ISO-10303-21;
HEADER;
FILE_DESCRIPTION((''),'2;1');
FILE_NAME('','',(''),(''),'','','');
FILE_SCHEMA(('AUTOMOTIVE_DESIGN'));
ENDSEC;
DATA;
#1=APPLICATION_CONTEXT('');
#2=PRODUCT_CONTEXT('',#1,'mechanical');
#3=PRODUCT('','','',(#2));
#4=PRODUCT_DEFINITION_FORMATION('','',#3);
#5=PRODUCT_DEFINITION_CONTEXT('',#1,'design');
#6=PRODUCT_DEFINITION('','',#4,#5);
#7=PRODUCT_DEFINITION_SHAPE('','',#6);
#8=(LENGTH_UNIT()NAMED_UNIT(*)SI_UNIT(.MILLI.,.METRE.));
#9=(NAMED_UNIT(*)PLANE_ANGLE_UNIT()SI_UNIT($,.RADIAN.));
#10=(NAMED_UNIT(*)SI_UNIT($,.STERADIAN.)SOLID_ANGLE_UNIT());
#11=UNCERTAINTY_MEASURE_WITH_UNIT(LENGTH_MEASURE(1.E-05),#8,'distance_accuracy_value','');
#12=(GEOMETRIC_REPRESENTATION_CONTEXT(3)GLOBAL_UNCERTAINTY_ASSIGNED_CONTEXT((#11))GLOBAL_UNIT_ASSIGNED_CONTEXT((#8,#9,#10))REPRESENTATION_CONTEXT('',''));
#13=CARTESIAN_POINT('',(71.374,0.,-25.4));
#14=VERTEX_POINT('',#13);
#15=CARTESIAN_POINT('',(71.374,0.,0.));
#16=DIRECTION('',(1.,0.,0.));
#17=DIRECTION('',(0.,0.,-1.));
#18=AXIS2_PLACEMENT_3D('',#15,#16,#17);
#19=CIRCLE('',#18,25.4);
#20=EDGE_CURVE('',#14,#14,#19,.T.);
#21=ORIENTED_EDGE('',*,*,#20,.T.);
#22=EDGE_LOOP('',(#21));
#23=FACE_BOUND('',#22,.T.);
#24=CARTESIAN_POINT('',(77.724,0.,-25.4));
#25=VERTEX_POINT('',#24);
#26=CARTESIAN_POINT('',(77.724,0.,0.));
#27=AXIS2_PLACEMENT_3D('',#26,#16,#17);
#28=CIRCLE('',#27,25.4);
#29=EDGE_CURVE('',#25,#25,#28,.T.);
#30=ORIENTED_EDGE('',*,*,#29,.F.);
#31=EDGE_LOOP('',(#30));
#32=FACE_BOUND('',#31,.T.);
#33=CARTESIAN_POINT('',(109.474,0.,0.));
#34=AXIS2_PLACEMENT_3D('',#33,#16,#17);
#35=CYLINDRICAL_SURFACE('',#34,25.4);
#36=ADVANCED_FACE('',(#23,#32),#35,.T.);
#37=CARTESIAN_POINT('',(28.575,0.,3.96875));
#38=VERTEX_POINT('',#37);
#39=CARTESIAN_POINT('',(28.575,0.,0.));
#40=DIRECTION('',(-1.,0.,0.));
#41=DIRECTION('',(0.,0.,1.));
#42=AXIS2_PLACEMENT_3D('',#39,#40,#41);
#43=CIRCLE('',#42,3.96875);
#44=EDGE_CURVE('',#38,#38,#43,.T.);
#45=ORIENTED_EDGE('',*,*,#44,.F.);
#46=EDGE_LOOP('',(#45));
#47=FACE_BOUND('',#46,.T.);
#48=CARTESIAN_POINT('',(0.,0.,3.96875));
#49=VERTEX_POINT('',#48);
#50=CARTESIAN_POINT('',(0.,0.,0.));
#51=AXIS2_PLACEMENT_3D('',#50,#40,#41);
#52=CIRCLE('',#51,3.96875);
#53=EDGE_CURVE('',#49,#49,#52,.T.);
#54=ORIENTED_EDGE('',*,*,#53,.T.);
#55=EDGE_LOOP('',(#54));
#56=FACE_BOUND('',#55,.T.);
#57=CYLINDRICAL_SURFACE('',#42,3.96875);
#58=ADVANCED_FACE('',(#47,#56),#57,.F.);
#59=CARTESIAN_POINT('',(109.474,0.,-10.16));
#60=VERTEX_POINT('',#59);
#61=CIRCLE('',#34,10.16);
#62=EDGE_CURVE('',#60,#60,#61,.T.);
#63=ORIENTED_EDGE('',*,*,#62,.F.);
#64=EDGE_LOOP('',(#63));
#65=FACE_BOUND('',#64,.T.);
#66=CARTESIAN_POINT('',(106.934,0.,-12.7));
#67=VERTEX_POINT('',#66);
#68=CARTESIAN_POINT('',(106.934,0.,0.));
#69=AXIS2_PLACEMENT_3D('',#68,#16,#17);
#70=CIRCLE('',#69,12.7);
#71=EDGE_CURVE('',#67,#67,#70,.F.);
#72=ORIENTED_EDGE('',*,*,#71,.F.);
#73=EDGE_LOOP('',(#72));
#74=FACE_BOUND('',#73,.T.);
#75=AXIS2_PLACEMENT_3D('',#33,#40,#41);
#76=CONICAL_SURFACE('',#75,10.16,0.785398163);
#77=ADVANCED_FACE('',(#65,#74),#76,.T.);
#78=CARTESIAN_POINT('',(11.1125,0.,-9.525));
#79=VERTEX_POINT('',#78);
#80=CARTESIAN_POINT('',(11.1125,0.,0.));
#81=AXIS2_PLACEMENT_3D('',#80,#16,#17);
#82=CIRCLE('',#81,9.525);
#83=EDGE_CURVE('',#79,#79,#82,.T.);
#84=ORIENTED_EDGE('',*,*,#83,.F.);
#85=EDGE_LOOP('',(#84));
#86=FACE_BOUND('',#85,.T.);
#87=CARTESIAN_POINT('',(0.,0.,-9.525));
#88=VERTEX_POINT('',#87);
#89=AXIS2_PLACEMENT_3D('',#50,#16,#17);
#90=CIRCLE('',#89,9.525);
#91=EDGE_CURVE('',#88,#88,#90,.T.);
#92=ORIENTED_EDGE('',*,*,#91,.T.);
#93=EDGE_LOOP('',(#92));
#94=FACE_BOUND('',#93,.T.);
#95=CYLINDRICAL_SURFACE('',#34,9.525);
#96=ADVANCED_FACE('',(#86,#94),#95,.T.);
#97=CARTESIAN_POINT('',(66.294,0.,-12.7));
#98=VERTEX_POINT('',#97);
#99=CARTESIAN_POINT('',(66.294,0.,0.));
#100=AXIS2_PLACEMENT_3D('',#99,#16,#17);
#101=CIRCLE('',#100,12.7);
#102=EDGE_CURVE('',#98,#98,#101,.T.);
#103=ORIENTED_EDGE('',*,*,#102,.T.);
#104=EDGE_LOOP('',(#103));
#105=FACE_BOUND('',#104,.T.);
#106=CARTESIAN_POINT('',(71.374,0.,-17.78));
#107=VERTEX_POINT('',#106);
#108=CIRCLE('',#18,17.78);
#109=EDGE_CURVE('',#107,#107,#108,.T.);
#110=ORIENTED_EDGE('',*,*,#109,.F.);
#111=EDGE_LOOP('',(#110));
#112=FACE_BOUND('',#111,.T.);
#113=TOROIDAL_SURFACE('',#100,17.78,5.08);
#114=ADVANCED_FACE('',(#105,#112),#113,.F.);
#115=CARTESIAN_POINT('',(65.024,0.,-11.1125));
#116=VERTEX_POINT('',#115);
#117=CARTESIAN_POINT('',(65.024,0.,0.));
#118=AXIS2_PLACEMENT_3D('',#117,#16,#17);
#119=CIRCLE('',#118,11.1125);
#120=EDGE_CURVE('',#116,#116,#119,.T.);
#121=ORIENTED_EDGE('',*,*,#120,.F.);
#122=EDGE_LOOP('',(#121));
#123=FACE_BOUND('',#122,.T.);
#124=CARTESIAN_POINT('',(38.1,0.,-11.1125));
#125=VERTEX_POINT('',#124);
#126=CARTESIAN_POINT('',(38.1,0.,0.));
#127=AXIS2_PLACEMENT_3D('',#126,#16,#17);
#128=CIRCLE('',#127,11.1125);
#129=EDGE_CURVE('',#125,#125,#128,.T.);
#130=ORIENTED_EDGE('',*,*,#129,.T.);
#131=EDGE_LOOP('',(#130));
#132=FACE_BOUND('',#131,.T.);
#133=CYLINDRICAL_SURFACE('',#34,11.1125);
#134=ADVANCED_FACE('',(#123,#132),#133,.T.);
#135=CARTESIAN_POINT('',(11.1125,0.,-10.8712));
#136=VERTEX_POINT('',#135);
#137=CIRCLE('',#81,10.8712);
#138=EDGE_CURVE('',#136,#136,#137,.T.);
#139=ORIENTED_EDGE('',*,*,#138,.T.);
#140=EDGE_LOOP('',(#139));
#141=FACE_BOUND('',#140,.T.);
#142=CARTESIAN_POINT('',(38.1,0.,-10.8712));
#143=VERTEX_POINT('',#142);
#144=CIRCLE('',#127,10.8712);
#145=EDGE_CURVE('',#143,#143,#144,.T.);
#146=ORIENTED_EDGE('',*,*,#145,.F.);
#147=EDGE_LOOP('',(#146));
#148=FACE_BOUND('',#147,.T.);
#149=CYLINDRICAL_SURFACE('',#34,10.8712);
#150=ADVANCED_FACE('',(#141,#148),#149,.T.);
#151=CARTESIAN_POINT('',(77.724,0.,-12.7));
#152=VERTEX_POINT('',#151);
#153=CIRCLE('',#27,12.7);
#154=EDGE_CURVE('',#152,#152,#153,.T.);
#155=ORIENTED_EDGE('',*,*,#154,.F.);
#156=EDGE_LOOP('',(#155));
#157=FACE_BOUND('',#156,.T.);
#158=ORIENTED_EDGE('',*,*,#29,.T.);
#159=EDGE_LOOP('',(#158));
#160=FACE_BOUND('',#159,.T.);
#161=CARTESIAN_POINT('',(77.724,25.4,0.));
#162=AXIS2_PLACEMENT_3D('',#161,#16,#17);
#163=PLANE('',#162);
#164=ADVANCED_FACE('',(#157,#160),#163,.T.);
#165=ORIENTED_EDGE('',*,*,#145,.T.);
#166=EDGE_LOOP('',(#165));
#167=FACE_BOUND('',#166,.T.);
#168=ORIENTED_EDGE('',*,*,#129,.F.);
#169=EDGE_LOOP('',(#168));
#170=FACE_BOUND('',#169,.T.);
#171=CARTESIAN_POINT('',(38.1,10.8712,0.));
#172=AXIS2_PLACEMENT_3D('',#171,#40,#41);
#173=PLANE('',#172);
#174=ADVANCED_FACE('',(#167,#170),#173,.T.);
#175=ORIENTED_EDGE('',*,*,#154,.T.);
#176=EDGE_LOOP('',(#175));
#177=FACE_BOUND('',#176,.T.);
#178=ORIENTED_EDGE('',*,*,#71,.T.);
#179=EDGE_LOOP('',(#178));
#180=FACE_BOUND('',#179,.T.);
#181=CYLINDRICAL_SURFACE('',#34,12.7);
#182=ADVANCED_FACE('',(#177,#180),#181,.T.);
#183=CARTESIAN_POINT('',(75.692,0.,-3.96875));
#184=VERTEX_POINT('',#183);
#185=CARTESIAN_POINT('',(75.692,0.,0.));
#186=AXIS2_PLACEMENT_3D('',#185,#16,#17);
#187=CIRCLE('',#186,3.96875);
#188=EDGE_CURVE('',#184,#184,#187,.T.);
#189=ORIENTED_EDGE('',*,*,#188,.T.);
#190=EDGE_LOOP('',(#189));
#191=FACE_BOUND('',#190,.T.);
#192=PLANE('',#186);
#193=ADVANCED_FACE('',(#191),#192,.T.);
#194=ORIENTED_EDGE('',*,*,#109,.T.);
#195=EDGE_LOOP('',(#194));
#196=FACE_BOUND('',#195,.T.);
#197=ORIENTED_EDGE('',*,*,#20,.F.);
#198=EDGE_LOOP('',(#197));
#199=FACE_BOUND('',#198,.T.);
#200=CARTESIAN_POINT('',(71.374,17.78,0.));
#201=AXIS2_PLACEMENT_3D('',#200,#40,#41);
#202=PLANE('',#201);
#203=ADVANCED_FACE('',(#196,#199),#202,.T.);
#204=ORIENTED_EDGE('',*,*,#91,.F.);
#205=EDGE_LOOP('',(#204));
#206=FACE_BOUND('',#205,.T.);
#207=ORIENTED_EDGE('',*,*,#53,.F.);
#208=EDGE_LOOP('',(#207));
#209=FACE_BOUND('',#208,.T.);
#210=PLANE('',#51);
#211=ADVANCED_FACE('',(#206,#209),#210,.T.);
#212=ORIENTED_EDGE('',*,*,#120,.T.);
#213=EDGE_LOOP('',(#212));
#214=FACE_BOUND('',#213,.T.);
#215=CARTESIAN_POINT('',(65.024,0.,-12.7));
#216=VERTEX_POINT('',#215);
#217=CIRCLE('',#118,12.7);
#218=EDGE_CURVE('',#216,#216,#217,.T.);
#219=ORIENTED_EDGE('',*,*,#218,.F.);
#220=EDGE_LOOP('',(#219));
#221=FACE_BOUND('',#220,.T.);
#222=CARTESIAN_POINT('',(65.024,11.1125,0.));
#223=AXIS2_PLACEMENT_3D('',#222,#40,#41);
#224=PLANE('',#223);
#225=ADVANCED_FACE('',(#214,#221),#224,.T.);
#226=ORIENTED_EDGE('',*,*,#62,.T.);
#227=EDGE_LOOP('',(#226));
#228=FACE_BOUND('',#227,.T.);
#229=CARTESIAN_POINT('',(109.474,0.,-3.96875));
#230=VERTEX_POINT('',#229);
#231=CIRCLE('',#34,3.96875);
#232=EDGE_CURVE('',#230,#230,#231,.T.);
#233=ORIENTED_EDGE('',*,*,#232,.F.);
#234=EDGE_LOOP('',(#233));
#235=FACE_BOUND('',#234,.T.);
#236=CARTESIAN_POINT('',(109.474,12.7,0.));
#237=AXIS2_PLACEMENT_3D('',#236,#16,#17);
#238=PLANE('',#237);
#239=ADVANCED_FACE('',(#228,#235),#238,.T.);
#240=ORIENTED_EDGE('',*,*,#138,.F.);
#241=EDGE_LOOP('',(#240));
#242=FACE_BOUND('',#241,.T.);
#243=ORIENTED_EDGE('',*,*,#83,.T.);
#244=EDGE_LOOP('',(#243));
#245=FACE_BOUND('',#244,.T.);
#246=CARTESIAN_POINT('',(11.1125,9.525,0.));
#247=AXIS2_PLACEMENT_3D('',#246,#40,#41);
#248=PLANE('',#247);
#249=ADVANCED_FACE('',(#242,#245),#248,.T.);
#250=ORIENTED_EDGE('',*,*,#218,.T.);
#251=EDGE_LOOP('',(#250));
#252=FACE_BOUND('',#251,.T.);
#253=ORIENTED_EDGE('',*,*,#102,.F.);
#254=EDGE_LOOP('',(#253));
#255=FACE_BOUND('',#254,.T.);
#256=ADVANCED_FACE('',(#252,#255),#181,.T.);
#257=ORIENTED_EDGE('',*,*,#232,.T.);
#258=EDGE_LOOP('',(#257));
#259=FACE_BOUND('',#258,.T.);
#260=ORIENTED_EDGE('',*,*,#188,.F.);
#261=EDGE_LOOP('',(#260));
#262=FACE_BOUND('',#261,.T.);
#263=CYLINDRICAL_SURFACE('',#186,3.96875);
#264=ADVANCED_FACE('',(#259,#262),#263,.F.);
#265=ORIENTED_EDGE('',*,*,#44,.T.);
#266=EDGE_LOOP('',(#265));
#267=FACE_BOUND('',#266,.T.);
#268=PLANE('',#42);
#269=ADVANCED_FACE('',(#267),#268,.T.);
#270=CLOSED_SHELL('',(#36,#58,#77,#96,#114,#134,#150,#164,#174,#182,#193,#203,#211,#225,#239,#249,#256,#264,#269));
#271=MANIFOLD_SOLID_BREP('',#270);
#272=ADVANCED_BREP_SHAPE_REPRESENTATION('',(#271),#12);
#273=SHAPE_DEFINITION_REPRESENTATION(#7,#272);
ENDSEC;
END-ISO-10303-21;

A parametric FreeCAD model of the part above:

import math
import FreeCAD as App
import Part
import Sketcher
from FreeCAD import Vector
Q = App.Units.Quantity


def edges_at(feature, points):
    """Names of the edges that pass closest to the given points."""
    edges = feature.Shape.Edges
    near = lambda p: min(range(len(edges)), key=lambda i: edges[i].distToShape(Part.Vertex(*p))[0])
    return sorted({f"Edge{near(p) + 1}" for p in points})

doc = App.newDocument("Part")
body = doc.addObject("PartDesign::Body", "Body")

sketch1 = body.newObject("Sketcher::SketchObject", "Sketch")
sketch1.AttachmentSupport = (doc.getObject("XY_Plane"), [""])
sketch1.MapMode = "FlatFace"
sketch1.addGeometry([
    Part.LineSegment(Vector(0, 9.53, 0), Vector(0, 0, 0)),
    Part.LineSegment(Vector(0, 0, 0), Vector(109.47, 0, 0)),
    Part.LineSegment(Vector(109.47, 0, 0), Vector(109.47, 12.7, 0)),
    Part.LineSegment(Vector(109.47, 12.7, 0), Vector(77.72, 12.7, 0)),
    Part.LineSegment(Vector(77.72, 12.7, 0), Vector(77.72, 25.4, 0)),
    Part.LineSegment(Vector(77.72, 25.4, 0), Vector(71.37, 25.4, 0)),
    Part.LineSegment(Vector(71.37, 25.4, 0), Vector(71.37, 17.78, 0)),
    Part.ArcOfCircle(Part.Circle(Vector(66.29, 17.78, 0), Vector(0, 0, 1), 5.08), math.radians(-90), math.radians(0)),
    Part.LineSegment(Vector(66.29, 12.7, 0), Vector(65.02, 12.7, 0)),
    Part.LineSegment(Vector(65.02, 12.7, 0), Vector(65.02, 11.11, 0)),
    Part.LineSegment(Vector(65.02, 11.11, 0), Vector(38.1, 11.11, 0)),
    Part.LineSegment(Vector(38.1, 11.11, 0), Vector(38.1, 10.87, 0)),
    Part.LineSegment(Vector(38.1, 10.87, 0), Vector(11.11, 10.87, 0)),
    Part.LineSegment(Vector(11.11, 10.87, 0), Vector(11.11, 9.53, 0)),
    Part.LineSegment(Vector(11.11, 9.53, 0), Vector(0, 9.53, 0)),
], False)
sketch1.addConstraint([
    Sketcher.Constraint("Coincident", 0, 2, 1, 1),
    Sketcher.Constraint("Coincident", 1, 2, 2, 1),
    Sketcher.Constraint("Coincident", 2, 2, 3, 1),
    Sketcher.Constraint("Coincident", 3, 2, 4, 1),
    Sketcher.Constraint("Coincident", 4, 2, 5, 1),
    Sketcher.Constraint("Coincident", 5, 2, 6, 1),
    Sketcher.Constraint("Tangent", 6, 2, 7, 2),
    Sketcher.Constraint("Tangent", 7, 1, 8, 1),
    Sketcher.Constraint("Coincident", 8, 2, 9, 1),
    Sketcher.Constraint("Coincident", 9, 2, 10, 1),
    Sketcher.Constraint("Coincident", 10, 2, 11, 1),
    Sketcher.Constraint("Coincident", 11, 2, 12, 1),
    Sketcher.Constraint("Coincident", 12, 2, 13, 1),
    Sketcher.Constraint("Coincident", 13, 2, 14, 1),
    Sketcher.Constraint("Coincident", 14, 2, 0, 1),
    Sketcher.Constraint("Vertical", 0),
    Sketcher.Constraint("Horizontal", 1),
    Sketcher.Constraint("Vertical", 2),
    Sketcher.Constraint("Horizontal", 3),
    Sketcher.Constraint("Vertical", 4),
    Sketcher.Constraint("Horizontal", 5),
    Sketcher.Constraint("Vertical", 6),
    Sketcher.Constraint("Horizontal", 8),
    Sketcher.Constraint("Vertical", 9),
    Sketcher.Constraint("Horizontal", 10),
    Sketcher.Constraint("Vertical", 11),
    Sketcher.Constraint("Horizontal", 12),
    Sketcher.Constraint("Vertical", 13),
    Sketcher.Constraint("Horizontal", 14),
    Sketcher.Constraint("Coincident", 0, 2, -1, 1),
    Sketcher.Constraint("Horizontal", 3, 2, 7, 1),
    Sketcher.Constraint("Equal", 2, 4),
    Sketcher.Constraint("Radius", 7, Q("0.2 in")),
    Sketcher.Constraint("DistanceY", 2, 1, 2, 2, Q("0.5 in")),
    Sketcher.Constraint("DistanceX", 1, 1, 1, 2, Q("4.31 in")),
    Sketcher.Constraint("DistanceX", 3, 2, 3, 1, Q("1.25 in")),
    Sketcher.Constraint("DistanceX", 5, 2, 5, 1, Q("0.25 in")),
    Sketcher.Constraint("DistanceX", 8, 2, 8, 1, Q("0.05 in")),
    Sketcher.Constraint("DistanceX", 10, 2, 10, 1, Q("1.06 in")),
    Sketcher.Constraint("DistanceX", 12, 2, 12, 1, Q("1.0625 in")),
    Sketcher.Constraint("DistanceY", 0, 2, 0, 1, Q("0.375 in")),
    Sketcher.Constraint("DistanceY", 9, 2, 9, 1, Q("0.0625 in")),
    Sketcher.Constraint("DistanceY", 13, 2, 13, 1, Q("0.053 in")),
])
revolution = body.newObject("PartDesign::Revolution", "Revolution")
revolution.Profile = sketch1
revolution.ReferenceAxis = (sketch1, ["H_Axis"])
revolution.Angle = 360

sketch2 = body.newObject("Sketcher::SketchObject", "Sketch001")
sketch2.AttachmentSupport = (doc.getObject("YZ_Plane"), [""])
sketch2.MapMode = "FlatFace"
sketch2.addGeometry(Part.Circle(Vector(0, 0, 0), Vector(0, 0, 1), 4), False)
sketch2.addConstraint([
    Sketcher.Constraint("Coincident", 0, 3, -1, 1),
    Sketcher.Constraint("Diameter", 0, Q("0.3125 in")),
])
pocket1 = body.newObject("PartDesign::Pocket", "Pocket")
pocket1.Profile = sketch2
pocket1.Length = Q("1.125 in")
pocket1.Reversed = True

sketch3 = body.newObject("Sketcher::SketchObject", "Sketch002")
sketch3.AttachmentSupport = (doc.getObject("YZ_Plane"), [""])
sketch3.MapMode = "FlatFace"
sketch3.AttachmentOffset = App.Placement(Vector(0, 0, 4.31 * 25.4), App.Rotation())
sketch3.addGeometry(Part.Circle(Vector(0, 0, 0), Vector(0, 0, 1), 4), False)
sketch3.addConstraint([
    Sketcher.Constraint("Coincident", 0, 3, -1, 1),
    Sketcher.Constraint("Diameter", 0, Q("0.3125 in")),
])
pocket2 = body.newObject("PartDesign::Pocket", "Pocket001")
pocket2.Profile = sketch3
pocket2.Length = Q("1.33 in")
doc.recompute()

chamfer = body.newObject("PartDesign::Chamfer", "Chamfer")
chamfer.Base = (pocket2, edges_at(pocket2, [(109.474, -12.7, 0)]))
chamfer.Size = Q("0.1 in")

doc.recompute()
